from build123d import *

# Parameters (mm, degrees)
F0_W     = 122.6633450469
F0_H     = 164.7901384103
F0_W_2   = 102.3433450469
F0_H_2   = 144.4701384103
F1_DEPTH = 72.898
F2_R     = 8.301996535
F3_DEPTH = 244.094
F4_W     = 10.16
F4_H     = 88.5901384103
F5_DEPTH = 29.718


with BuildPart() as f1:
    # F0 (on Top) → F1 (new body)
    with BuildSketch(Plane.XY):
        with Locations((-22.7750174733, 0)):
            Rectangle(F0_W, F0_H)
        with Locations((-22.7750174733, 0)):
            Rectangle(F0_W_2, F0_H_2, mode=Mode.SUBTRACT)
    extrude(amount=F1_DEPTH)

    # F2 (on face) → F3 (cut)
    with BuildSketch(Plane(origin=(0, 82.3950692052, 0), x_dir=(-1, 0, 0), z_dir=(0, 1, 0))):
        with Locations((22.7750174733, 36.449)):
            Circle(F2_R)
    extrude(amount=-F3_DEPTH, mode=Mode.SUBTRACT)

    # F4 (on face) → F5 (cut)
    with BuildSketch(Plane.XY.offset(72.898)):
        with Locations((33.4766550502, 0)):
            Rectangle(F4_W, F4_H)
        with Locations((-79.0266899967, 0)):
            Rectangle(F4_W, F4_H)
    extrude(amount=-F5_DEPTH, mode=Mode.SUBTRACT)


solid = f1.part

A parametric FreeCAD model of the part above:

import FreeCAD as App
import Part
import Sketcher

V = App.Vector
Q = App.Units.Quantity

doc = App.newDocument("Part")
params = doc.addObject("Spreadsheet::Sheet", "Params")
for row, (alias, value) in enumerate([
    ("pad1_length", "2.87 in"),
    ("pocket1_length", "9.61 in"),
    ("sketch3_width", "0.4 in"),
    ("pocket2_length", "1.17 in"),
], start=1):
    params.set(f"A{row}", alias)
    params.set(f"B{row}", "=" + value)
    params.setAlias(f"B{row}", alias)

body = doc.addObject("PartDesign::Body", "Body")

# Sketch on XY plane
sketch1 = body.newObject("Sketcher::SketchObject", "Sketch")
sketch1.AttachmentSupport = (doc.getObject("XY_Plane"), [""])
sketch1.MapMode = "FlatFace"
sketch1.addGeometry([
    Part.LineSegment(V(-84.10669, 82.395069, 0), V(-84.10669, -82.395069, 0)),  # 0
    Part.LineSegment(V(-84.10669, -82.395069, 0), V(38.556655, -82.395069, 0)),  # 1
    Part.LineSegment(V(38.556655, -82.395069, 0), V(38.556655, 82.395069, 0)),  # 2
    Part.LineSegment(V(38.556655, 82.395069, 0), V(-84.10669, 82.395069, 0)),  # 3
    Part.LineSegment(V(28.396655, -72.235069, 0), V(-73.94669, -72.235069, 0)),  # 4
    Part.LineSegment(V(-73.94669, -72.235069, 0), V(-73.94669, 72.235069, 0)),  # 5
    Part.LineSegment(V(-73.94669, 72.235069, 0), V(28.396655, 72.235069, 0)),  # 6
    Part.LineSegment(V(28.396655, 72.235069, 0), V(28.396655, -72.235069, 0)),  # 7
], False)
sketch1.addConstraint([
    Sketcher.Constraint("Coincident", 0, 2, 1, 1),
    Sketcher.Constraint("Coincident", 1, 2, 2, 1),
    Sketcher.Constraint("Coincident", 2, 2, 3, 1),
    Sketcher.Constraint("Coincident", 3, 2, 0, 1),
    Sketcher.Constraint("Coincident", 4, 2, 5, 1),
    Sketcher.Constraint("Coincident", 5, 2, 6, 1),
    Sketcher.Constraint("Coincident", 6, 2, 7, 1),
    Sketcher.Constraint("Coincident", 7, 2, 4, 1),
    Sketcher.Constraint("Vertical", 0),
    Sketcher.Constraint("Horizontal", 1),
    Sketcher.Constraint("Vertical", 2),
    Sketcher.Constraint("Horizontal", 3),
    Sketcher.Constraint("Horizontal", 4),
    Sketcher.Constraint("Vertical", 5),
    Sketcher.Constraint("Horizontal", 6),
    Sketcher.Constraint("Vertical", 7),
    Sketcher.Constraint("DistanceX", 0, 2, 4, 2, Q("0.4 in")),
    Sketcher.Constraint("DistanceY", 0, 2, 4, 2, Q("0.4 in")),
    Sketcher.Constraint("DistanceY", 5, 2, 3, 2, Q("0.4 in")),
    Sketcher.Constraint("DistanceX", 6, 2, 2, 2, Q("0.4 in")),
    Sketcher.Constraint("DistanceY", 0, 2, 0, 1, Q("164.790138 mm")),
    Sketcher.Constraint("DistanceX", 1, 1, 1, 2, Q("122.663345 mm")),
    Sketcher.Constraint("DistanceX", 0, 2, -1, 1, Q("84.10669 mm")),
    Sketcher.Constraint("DistanceY", 0, 2, -1, 1, Q("82.395069 mm")),
])
pad1 = body.newObject("PartDesign::Pad", "Pad")
pad1.Profile = sketch1
pad1.setExpression("Length", "Params.pad1_length")

# Sketch on XZ plane
sketch2 = body.newObject("Sketcher::SketchObject", "Sketch001")
sketch2.AttachmentSupport = (doc.getObject("XZ_Plane"), [""])
sketch2.MapMode = "FlatFace"
sketch2.AttachmentOffset = App.Placement(V(0, 0, -82.395069), App.Rotation())
sketch2.addGeometry(Part.Circle(V(-22.775017, 36.449, 0), V(0, 0, 1), 8.301997), False)
sketch2.addConstraint([
    Sketcher.Constraint("DistanceY", -1, 1, 0, 3, Q("1.435 in")),
    Sketcher.Constraint("Diameter", 0, Q("16.603993 mm")),
    Sketcher.Constraint("DistanceX", 0, 3, -1, 1, Q("22.775017 mm")),
])
pocket1 = body.newObject("PartDesign::Pocket", "Pocket")
pocket1.Profile = sketch2
pocket1.setExpression("Length", "Params.pocket1_length")
pocket1.Reversed = True

# Sketch on XY plane
sketch3 = body.newObject("Sketcher::SketchObject", "Sketch002")
sketch3.AttachmentSupport = (doc.getObject("XY_Plane"), [""])
sketch3.MapMode = "FlatFace"
sketch3.AttachmentOffset = App.Placement(V(0, 0, 2.87 * 25.4), App.Rotation())
sketch3.addGeometry([
    Part.LineSegment(V(28.396655, 44.295069, 0), V(28.396655, -44.295069, 0)),  # 0
    Part.LineSegment(V(28.396655, -44.295069, 0), V(38.556655, -44.295069, 0)),  # 1
    Part.LineSegment(V(38.556655, -44.295069, 0), V(38.556655, 44.295069, 0)),  # 2
    Part.LineSegment(V(38.556655, 44.295069, 0), V(28.396655, 44.295069, 0)),  # 3
    Part.LineSegment(V(-84.10669, 44.295069, 0), V(-84.10669, -44.295069, 0)),  # 4
    Part.LineSegment(V(-84.10669, -44.295069, 0), V(-73.94669, -44.295069, 0)),  # 5
    Part.LineSegment(V(-73.94669, -44.295069, 0), V(-73.94669, 44.295069, 0)),  # 6
    Part.LineSegment(V(-73.94669, 44.295069, 0), V(-84.10669, 44.295069, 0)),  # 7
], False)
sketch3.addConstraint([
    Sketcher.Constraint("Coincident", 0, 2, 1, 1),
    Sketcher.Constraint("Coincident", 1, 2, 2, 1),
    Sketcher.Constraint("Coincident", 2, 2, 3, 1),
    Sketcher.Constraint("Coincident", 3, 2, 0, 1),
    Sketcher.Constraint("Coincident", 4, 2, 5, 1),
    Sketcher.Constraint("Coincident", 5, 2, 6, 1),
    Sketcher.Constraint("Coincident", 6, 2, 7, 1),
    Sketcher.Constraint("Coincident", 7, 2, 4, 1),
    Sketcher.Constraint("Vertical", 0),
    Sketcher.Constraint("Horizontal", 1),
    Sketcher.Constraint("Vertical", 2),
    Sketcher.Constraint("Horizontal", 3),
    Sketcher.Constraint("Vertical", 4),
    Sketcher.Constraint("Horizontal", 5),
    Sketcher.Constraint("Vertical", 6),
    Sketcher.Constraint("Horizontal", 7),
    Sketcher.Constraint("Horizontal", 1, 2, 4, 2),
    Sketcher.Constraint("Horizontal", 3, 2, 6, 2),
    Sketcher.Constraint("Equal", 3, 5),
    Sketcher.Constraint("DistanceX", 1, 1, 1, 2, Q("0.4 in")),
    Sketcher.Constraint("DistanceY", 0, 2, 0, 1, Q("88.590138 mm")),
    Sketcher.Constraint("DistanceY", 0, 2, -1, 1, Q("44.295069 mm")),
    Sketcher.Constraint("DistanceX", 4, 2, -1, 1, Q("84.10669 mm")),
    Sketcher.Constraint("DistanceX", -1, 1, 0, 2, Q("28.396655 mm")),
])
sketch3.setExpression("Constraints[19]", "Params.sketch3_width")
pocket2 = body.newObject("PartDesign::Pocket", "Pocket001")
pocket2.Profile = sketch3
pocket2.setExpression("Length", "Params.pocket2_length")

doc.recompute()
